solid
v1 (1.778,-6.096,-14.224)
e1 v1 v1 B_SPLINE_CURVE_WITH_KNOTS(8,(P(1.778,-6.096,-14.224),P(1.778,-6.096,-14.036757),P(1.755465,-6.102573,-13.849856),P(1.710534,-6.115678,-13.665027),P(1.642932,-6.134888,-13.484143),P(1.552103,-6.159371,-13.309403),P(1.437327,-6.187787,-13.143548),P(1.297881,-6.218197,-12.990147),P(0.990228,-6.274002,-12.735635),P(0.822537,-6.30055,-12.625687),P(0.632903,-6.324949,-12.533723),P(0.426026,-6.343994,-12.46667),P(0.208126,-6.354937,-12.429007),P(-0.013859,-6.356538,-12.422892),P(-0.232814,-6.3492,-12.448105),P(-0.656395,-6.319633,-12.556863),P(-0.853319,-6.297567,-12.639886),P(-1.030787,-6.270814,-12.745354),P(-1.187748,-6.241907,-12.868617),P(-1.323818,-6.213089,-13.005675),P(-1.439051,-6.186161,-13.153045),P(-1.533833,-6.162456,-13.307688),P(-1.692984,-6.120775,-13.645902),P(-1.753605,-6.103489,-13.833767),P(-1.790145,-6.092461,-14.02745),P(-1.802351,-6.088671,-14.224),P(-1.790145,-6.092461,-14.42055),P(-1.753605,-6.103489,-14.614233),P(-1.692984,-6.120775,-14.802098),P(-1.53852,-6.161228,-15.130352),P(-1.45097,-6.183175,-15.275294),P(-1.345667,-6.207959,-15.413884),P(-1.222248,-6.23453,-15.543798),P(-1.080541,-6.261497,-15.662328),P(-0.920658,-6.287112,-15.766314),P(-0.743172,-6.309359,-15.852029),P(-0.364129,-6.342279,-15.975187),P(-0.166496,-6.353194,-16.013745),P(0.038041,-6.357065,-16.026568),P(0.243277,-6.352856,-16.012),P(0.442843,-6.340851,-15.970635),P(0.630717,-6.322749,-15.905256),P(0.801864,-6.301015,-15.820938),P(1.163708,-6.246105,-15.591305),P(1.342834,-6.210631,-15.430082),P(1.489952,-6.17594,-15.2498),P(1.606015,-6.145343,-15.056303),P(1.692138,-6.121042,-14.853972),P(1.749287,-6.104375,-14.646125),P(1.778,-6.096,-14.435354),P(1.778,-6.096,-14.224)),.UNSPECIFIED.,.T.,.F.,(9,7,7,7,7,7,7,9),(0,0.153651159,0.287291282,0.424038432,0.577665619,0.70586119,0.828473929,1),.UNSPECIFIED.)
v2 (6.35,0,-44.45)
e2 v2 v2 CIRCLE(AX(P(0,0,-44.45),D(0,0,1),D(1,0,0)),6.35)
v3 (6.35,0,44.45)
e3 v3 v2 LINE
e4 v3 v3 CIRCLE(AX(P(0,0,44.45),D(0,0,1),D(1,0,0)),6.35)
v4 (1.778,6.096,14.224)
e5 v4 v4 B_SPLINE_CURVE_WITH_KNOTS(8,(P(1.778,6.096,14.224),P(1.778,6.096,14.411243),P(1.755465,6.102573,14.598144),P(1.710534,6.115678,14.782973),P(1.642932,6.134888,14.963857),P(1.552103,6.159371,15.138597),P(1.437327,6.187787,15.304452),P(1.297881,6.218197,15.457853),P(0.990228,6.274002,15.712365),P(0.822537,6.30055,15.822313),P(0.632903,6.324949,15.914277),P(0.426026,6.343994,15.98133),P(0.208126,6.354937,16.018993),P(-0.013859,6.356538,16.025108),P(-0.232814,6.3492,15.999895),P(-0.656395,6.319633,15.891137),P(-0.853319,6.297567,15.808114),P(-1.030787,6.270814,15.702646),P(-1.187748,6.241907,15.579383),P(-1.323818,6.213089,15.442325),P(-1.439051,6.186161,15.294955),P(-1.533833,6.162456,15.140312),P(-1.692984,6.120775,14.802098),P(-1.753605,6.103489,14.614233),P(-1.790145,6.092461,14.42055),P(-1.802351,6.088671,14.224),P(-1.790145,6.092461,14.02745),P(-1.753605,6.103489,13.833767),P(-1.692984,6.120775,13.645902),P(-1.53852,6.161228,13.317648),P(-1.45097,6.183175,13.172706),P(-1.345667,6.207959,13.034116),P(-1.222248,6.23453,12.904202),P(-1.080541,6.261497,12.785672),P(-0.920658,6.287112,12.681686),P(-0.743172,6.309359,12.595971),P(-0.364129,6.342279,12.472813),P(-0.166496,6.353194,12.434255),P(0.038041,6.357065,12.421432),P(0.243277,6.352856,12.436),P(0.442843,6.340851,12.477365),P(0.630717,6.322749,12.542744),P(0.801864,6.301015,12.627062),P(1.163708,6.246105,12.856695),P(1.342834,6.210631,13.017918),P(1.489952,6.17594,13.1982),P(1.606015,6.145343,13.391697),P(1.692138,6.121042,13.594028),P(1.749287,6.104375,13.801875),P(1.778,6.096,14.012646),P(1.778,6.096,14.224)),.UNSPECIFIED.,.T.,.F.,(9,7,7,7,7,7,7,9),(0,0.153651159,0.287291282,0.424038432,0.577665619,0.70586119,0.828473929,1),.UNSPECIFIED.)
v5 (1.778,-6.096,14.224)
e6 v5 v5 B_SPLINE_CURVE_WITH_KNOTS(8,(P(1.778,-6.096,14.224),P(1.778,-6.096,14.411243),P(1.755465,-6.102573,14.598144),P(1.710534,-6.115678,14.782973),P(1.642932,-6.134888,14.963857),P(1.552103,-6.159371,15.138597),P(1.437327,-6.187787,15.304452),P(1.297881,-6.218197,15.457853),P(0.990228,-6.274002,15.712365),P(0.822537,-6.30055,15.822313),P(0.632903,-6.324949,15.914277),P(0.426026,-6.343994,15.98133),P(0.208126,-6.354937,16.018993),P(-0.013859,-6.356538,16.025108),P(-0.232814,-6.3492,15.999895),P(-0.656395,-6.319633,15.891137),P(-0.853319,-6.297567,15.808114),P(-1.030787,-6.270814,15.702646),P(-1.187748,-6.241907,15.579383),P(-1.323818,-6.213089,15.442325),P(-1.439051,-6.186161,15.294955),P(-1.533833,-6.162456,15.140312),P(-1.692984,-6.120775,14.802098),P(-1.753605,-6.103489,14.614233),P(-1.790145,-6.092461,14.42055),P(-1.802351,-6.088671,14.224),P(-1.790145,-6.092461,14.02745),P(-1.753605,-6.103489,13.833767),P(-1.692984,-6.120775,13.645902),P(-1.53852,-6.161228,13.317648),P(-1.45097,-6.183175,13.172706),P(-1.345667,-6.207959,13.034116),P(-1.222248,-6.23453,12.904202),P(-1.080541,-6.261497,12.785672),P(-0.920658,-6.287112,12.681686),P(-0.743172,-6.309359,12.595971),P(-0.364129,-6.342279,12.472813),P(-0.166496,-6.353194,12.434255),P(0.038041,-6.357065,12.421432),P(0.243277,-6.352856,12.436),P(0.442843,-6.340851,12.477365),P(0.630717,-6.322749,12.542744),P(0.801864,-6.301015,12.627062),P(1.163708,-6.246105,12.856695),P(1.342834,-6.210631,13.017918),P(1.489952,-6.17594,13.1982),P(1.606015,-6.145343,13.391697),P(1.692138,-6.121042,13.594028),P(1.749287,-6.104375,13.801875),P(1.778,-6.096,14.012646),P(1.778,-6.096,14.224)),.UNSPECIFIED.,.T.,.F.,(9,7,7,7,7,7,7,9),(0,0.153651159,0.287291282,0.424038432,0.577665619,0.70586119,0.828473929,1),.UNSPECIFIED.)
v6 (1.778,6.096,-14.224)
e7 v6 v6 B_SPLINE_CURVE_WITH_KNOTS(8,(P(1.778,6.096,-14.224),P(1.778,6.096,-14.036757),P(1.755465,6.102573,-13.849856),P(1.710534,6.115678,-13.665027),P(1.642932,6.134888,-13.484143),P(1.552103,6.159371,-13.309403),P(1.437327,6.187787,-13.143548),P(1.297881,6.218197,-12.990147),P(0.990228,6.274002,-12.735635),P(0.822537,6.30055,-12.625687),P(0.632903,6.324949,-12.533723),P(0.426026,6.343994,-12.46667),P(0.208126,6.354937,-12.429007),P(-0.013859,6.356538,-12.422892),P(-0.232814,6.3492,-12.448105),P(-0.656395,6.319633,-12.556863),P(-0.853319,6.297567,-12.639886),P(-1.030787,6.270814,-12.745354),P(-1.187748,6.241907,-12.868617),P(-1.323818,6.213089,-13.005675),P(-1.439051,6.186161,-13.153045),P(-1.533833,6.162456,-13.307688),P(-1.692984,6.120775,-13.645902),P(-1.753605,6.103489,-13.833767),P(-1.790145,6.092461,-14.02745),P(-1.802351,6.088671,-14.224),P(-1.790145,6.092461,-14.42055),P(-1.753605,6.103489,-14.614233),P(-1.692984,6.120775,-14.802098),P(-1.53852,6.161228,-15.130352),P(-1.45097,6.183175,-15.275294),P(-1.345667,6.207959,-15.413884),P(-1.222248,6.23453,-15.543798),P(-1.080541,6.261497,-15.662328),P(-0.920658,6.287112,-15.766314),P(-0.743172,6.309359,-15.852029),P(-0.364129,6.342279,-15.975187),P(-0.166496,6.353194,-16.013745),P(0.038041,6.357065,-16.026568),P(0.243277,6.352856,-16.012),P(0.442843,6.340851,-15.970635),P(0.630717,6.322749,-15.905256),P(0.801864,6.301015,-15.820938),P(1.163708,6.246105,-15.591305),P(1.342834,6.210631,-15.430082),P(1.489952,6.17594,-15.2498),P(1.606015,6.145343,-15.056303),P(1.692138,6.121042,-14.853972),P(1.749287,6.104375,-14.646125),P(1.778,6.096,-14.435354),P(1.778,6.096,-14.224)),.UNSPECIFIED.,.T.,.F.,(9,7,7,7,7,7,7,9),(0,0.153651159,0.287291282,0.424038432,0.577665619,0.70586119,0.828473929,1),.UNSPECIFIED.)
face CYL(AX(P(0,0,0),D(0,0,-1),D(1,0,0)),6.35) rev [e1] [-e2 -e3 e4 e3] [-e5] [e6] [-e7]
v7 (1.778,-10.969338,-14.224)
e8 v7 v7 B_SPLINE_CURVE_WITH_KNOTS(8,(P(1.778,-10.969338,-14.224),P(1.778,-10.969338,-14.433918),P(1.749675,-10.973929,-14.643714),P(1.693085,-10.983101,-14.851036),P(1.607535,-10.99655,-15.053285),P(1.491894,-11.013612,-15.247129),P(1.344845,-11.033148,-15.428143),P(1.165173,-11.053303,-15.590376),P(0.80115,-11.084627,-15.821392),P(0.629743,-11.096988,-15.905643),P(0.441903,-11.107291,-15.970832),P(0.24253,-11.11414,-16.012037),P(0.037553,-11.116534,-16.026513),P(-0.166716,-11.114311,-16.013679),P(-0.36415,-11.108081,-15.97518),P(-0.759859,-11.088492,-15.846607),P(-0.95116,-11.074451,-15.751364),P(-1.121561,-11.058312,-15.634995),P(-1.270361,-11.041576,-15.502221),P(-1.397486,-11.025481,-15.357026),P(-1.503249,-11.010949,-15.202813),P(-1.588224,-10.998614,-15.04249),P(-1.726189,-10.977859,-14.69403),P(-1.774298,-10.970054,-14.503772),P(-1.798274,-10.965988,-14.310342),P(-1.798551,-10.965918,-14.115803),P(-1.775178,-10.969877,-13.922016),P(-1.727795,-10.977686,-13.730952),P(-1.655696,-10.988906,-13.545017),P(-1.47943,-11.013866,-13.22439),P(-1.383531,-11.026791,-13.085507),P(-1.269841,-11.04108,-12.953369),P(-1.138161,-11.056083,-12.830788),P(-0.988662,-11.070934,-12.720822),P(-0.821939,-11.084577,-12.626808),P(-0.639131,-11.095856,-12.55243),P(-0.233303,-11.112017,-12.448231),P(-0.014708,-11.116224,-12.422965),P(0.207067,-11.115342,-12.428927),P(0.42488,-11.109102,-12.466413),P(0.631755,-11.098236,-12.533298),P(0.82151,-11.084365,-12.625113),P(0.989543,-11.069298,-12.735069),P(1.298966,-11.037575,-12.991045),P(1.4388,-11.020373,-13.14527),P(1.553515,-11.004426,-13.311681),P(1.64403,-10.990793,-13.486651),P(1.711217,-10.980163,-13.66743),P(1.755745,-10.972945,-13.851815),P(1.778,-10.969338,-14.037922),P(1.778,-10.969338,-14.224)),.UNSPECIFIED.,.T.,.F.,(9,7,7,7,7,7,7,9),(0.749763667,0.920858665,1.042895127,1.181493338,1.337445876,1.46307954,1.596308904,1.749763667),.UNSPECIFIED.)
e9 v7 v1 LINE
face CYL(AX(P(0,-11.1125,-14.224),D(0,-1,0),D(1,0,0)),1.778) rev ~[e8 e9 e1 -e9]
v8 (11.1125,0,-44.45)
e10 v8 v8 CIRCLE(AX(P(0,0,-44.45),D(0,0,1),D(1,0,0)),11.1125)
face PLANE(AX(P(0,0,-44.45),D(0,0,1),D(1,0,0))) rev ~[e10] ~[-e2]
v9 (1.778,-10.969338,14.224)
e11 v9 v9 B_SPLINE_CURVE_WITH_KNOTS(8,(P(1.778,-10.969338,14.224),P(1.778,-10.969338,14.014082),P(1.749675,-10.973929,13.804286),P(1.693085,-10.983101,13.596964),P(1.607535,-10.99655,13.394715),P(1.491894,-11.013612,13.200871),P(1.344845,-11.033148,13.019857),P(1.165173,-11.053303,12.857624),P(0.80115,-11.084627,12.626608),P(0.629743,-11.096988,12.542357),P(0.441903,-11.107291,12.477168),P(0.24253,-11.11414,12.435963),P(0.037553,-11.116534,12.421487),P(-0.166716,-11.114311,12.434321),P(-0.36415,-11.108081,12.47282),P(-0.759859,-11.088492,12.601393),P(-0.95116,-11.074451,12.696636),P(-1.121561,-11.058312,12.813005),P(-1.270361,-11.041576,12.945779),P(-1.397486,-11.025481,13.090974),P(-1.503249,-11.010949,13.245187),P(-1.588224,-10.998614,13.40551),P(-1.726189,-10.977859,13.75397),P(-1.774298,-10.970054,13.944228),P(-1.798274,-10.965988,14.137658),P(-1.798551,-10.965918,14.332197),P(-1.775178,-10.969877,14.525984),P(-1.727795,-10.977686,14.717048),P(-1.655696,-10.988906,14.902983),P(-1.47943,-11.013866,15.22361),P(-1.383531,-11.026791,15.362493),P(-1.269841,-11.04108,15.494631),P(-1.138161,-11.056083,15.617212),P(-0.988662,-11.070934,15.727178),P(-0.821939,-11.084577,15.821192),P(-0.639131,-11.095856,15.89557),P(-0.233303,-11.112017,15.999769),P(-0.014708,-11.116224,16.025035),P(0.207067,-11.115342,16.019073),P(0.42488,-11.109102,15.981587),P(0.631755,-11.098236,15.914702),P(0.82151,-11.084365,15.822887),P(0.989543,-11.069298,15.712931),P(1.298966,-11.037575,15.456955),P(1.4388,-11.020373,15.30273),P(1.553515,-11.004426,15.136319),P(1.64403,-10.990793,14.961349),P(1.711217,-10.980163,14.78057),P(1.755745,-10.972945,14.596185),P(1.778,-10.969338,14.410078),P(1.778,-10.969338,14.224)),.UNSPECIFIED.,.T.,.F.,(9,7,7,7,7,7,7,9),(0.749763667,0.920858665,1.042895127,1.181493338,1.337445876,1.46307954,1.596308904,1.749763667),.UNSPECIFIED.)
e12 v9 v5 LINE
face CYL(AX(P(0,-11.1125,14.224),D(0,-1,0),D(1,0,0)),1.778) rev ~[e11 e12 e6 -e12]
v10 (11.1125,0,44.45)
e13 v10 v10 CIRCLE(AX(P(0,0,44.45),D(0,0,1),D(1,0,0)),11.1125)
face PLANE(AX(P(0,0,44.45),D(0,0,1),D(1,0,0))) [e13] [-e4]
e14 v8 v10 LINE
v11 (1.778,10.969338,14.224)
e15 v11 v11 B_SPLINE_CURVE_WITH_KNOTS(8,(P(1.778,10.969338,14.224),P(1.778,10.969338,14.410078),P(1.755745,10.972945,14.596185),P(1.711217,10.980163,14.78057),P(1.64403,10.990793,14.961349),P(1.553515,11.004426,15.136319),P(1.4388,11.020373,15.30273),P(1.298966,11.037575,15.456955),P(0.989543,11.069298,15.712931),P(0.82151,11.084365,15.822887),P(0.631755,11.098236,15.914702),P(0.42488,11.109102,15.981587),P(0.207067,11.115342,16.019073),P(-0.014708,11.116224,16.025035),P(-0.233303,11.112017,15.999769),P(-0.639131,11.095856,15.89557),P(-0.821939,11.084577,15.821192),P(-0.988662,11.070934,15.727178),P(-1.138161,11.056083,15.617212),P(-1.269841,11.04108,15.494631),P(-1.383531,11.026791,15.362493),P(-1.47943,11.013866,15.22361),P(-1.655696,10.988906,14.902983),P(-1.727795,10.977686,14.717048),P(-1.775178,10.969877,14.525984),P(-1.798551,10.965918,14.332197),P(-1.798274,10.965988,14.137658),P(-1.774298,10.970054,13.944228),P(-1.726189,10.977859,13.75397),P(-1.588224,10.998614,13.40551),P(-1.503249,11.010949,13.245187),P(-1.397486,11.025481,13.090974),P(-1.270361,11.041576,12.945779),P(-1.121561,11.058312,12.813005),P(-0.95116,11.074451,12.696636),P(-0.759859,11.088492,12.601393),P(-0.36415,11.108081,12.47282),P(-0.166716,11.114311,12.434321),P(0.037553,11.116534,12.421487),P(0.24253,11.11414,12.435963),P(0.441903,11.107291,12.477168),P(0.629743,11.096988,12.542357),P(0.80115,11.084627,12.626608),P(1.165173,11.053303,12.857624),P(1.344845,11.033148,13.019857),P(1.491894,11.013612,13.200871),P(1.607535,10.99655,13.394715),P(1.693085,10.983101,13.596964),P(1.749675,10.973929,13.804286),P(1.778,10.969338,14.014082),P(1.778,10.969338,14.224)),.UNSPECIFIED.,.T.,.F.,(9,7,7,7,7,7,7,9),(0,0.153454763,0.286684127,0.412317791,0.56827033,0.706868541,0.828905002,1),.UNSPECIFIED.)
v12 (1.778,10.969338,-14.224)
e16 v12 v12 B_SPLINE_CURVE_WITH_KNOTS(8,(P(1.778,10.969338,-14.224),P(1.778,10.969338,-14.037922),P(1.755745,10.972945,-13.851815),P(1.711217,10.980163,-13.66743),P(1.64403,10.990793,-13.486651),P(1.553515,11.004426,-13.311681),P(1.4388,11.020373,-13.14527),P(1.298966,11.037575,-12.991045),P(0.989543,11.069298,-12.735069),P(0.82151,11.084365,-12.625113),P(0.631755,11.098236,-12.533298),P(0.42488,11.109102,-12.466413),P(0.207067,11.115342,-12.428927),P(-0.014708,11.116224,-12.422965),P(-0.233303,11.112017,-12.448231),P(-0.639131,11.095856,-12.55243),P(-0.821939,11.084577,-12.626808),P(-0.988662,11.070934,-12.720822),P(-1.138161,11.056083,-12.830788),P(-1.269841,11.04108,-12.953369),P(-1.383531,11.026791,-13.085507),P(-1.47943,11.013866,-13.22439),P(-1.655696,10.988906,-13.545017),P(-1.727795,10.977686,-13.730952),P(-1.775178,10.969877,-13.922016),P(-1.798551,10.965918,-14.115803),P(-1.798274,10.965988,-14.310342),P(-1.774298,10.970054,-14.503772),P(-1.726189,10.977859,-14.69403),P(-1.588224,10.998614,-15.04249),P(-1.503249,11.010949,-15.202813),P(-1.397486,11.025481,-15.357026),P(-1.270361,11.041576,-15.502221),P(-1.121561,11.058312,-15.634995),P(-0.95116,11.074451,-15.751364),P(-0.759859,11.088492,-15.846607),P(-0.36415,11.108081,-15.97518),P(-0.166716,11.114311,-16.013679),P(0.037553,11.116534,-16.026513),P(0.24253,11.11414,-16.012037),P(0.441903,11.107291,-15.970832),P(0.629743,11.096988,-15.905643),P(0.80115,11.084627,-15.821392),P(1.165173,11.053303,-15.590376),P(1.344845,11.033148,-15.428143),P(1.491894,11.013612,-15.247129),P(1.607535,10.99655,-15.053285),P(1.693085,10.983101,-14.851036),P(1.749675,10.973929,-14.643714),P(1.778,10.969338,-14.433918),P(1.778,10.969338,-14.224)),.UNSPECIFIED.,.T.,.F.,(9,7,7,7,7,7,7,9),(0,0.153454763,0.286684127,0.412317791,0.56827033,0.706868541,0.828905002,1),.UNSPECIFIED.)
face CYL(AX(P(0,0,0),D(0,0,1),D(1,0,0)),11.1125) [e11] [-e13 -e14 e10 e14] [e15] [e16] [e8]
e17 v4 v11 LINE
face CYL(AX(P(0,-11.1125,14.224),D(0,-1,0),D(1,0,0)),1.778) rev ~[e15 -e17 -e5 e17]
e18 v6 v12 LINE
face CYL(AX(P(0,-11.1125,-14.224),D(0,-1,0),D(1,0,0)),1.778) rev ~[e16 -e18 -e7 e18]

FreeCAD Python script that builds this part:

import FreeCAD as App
import Part
import Sketcher
Q = App.Units.Quantity

doc = App.newDocument("Part")
body = doc.addObject("PartDesign::Body", "Body")

sketch1 = body.newObject("Sketcher::SketchObject", "Sketch")
sketch1.AttachmentSupport = (doc.getObject("XY_Plane"), [""])
sketch1.MapMode = "FlatFace"
sketch1.addGeometry([
    Part.Circle(App.Vector(0, 0, 0), App.Vector(0, 0, 1), 11.1125),
    Part.Circle(App.Vector(0, 0, 0), App.Vector(0, 0, 1), 6.35),
], False)
sketch1.addConstraint([
    Sketcher.Constraint("Coincident", 0, 3, -1, 1),
    Sketcher.Constraint("Coincident", 1, 3, -1, 1),
    Sketcher.Constraint("Diameter", 1, Q("0.5 in")),
    Sketcher.Constraint("Diameter", 0, Q("0.875 in")),
])
pad1 = body.newObject("PartDesign::Pad", "Pad")
pad1.Profile = sketch1
pad1.Length = Q("3.5 in")
pad1.Midplane = True

sketch2 = body.newObject("Sketcher::SketchObject", "Sketch001")
sketch2.AttachmentSupport = (doc.getObject("XZ_Plane"), [""])
sketch2.MapMode = "FlatFace"
sketch2.AttachmentOffset = App.Placement(App.Vector(0, 0, 0.4375 * 25.4), App.Rotation())
sketch2.addGeometry([
    Part.Circle(App.Vector(0, 14.224, 0), App.Vector(0, 0, 1), 1.778),
    Part.Circle(App.Vector(0, -14.224, 0), App.Vector(0, 0, 1), 1.778),
], False)
sketch2.addConstraint([
    Sketcher.Constraint("Equal", 0, 1),
    Sketcher.Constraint("Symmetric", 0, 3, 1, 3, -1, 1),
    Sketcher.Constraint("PointOnObject", 0, 3, -2),
    Sketcher.Constraint("Diameter", 0, Q("0.14 in")),
    Sketcher.Constraint("DistanceY", -1, 1, 0, 3, Q("0.56 in")),
])
pocket1 = body.newObject("PartDesign::Pocket", "Pocket")
pocket1.Profile = sketch2
pocket1.Type = "ThroughAll"

doc.recompute()
